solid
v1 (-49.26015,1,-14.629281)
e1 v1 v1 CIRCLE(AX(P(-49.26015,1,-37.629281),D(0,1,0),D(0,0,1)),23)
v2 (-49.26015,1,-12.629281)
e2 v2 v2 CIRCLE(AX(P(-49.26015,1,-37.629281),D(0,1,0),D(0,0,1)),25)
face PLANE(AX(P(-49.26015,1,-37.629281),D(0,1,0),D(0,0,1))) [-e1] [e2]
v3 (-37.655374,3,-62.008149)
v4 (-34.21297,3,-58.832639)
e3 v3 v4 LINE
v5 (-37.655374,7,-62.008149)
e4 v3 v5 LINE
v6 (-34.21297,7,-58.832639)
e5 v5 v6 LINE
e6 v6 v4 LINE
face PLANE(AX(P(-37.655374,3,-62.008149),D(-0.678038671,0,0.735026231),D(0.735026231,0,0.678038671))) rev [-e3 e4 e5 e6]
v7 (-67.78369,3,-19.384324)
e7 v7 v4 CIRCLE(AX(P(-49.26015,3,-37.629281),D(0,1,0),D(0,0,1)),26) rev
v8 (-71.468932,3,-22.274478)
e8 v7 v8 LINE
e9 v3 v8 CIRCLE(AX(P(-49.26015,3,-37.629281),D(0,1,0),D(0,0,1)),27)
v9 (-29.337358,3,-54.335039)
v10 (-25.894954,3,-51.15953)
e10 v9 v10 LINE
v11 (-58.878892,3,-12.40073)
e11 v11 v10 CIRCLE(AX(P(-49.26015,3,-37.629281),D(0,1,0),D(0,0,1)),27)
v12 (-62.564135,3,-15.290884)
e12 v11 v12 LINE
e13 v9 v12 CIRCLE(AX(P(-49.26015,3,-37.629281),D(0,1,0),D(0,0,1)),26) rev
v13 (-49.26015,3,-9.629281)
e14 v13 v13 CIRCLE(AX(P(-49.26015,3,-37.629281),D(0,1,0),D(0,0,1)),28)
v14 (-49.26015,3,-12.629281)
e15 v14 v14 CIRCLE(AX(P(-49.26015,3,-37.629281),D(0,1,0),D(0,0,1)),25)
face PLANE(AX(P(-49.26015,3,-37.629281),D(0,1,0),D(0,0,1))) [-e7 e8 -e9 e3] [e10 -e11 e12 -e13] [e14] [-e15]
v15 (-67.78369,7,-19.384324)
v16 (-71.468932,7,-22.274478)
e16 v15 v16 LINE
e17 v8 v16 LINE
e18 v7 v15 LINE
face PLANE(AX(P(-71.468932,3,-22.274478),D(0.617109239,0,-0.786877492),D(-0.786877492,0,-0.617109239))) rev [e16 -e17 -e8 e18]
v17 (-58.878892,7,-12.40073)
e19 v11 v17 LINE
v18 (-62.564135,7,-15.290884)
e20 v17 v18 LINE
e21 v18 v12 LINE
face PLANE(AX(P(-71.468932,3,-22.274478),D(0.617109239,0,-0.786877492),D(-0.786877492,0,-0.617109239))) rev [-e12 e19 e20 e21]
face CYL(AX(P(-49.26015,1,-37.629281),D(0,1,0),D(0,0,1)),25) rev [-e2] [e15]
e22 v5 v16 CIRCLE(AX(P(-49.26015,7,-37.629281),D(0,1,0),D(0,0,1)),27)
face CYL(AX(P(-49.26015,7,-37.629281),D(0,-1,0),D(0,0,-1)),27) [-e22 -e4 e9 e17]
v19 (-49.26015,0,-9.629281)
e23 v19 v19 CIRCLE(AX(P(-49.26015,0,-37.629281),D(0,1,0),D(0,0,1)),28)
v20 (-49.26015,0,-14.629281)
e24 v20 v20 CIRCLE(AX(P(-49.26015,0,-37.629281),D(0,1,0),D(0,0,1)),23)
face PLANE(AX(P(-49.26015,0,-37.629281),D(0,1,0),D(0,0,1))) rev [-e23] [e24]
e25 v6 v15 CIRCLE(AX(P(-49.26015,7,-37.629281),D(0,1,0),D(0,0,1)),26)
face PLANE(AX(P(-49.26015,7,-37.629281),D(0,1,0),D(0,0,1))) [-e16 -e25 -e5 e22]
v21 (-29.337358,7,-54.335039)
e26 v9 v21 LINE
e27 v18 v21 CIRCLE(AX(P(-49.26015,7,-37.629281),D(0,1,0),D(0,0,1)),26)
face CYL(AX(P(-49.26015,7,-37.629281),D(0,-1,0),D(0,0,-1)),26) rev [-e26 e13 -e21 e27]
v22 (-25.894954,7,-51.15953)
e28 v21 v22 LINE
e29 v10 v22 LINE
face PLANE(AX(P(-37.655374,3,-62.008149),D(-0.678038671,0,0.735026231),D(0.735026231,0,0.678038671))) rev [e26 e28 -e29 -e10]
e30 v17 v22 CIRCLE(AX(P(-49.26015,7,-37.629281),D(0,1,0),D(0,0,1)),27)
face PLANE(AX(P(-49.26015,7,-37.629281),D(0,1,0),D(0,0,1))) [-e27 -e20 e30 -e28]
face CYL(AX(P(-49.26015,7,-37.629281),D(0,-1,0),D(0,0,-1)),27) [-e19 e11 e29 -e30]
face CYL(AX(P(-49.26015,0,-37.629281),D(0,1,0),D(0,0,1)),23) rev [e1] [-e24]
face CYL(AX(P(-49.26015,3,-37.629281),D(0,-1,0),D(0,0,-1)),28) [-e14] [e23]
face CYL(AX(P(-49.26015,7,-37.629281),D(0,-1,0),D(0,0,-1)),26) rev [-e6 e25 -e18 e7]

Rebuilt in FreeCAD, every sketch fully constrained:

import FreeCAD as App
import Part
import Sketcher
from FreeCAD import Vector


def add_polygon(sketch, points):
    """Adds a closed chain of lines whose ends are joined by coincident constraints."""
    first, n = sketch.GeometryCount, len(points)
    for a, b in zip(points, points[1:] + points[:1]):
        sketch.addGeometry(Part.LineSegment(App.Vector(*a, 0), App.Vector(*b, 0)), False)
    for i in range(n):
        sketch.addConstraint(Sketcher.Constraint("Coincident", first + i, 2, first + (i + 1) % n, 1))

doc = App.newDocument("Part")
body = doc.addObject("PartDesign::Body", "Body")

sketch1 = body.newObject("Sketcher::SketchObject", "Sketch")
sketch1.AttachmentSupport = (doc.getObject("XZ_Plane"), [""])
sketch1.MapMode = "FlatFace"
sketch1.addGeometry(Part.Circle(Vector(-49, -38, 0), Vector(0, 0, 1), 28), False)
sketch1.addConstraint(Sketcher.Constraint("Diameter", 0, 56.0))
sketch1.addConstraint(Sketcher.Constraint("DistanceX", 0, 3, -1, 1, 49.26015))
sketch1.addConstraint(Sketcher.Constraint("DistanceY", 0, 3, -1, 1, 37.629281))
pad1 = body.newObject("PartDesign::Pad", "Pad")
pad1.Profile = sketch1
pad1.Length = 3
pad1.Reversed = True

sketch2 = body.newObject("Sketcher::SketchObject", "Sketch001")
sketch2.AttachmentSupport = (doc.getObject("XZ_Plane"), [""])
sketch2.MapMode = "FlatFace"
sketch2.AttachmentOffset = App.Placement(Vector(0, 0, -3), App.Rotation())
sketch2.addGeometry(Part.Circle(Vector(-49, -38, 0), Vector(0, 0, 1), 27), False)
sketch2.addGeometry(Part.Circle(Vector(-49, -38, 0), Vector(0, 0, 1), 26), False)
sketch2.addConstraint(Sketcher.Constraint("Coincident", 1, 3, 0, 3))
sketch2.addConstraint(Sketcher.Constraint("Diameter", 0, 54.0))
sketch2.addConstraint(Sketcher.Constraint("Diameter", 1, 52.0))
sketch2.addConstraint(Sketcher.Constraint("DistanceX", 0, 3, -1, 1, 49.26015))
sketch2.addConstraint(Sketcher.Constraint("DistanceY", 0, 3, -1, 1, 37.629281))
pad2 = body.newObject("PartDesign::Pad", "Pad001")
pad2.Profile = sketch2
pad2.Length = 4
pad2.Reversed = True

sketch3 = body.newObject("Sketcher::SketchObject", "Sketch002")
sketch3.AttachmentSupport = (doc.getObject("XZ_Plane"), [""])
sketch3.MapMode = "FlatFace"
sketch3.AttachmentOffset = App.Placement(Vector(0, 0, -3), App.Rotation())
sketch3.addGeometry(Part.Circle(Vector(-49, -38, 0), Vector(0, 0, 1), 25), False)
sketch3.addConstraint(Sketcher.Constraint("Diameter", 0, 50.0))
sketch3.addConstraint(Sketcher.Constraint("DistanceX", 0, 3, -1, 1, 49.26015))
sketch3.addConstraint(Sketcher.Constraint("DistanceY", 0, 3, -1, 1, 37.629281))
pocket1 = body.newObject("PartDesign::Pocket", "Pocket")
pocket1.Profile = sketch3
pocket1.Length = 2
pocket1.Reversed = True

sketch4 = body.newObject("Sketcher::SketchObject", "Sketch003")
sketch4.AttachmentSupport = (doc.getObject("XZ_Plane"), [""])
sketch4.MapMode = "FlatFace"
sketch4.AttachmentOffset = App.Placement(Vector(0, 0, -1), App.Rotation())
sketch4.addGeometry(Part.Circle(Vector(-49, -38, 0), Vector(0, 0, 1), 23), False)
sketch4.addConstraint(Sketcher.Constraint("Diameter", 0, 46.0))
sketch4.addConstraint(Sketcher.Constraint("DistanceX", 0, 3, -1, 1, 49.26015))
sketch4.addConstraint(Sketcher.Constraint("DistanceY", 0, 3, -1, 1, 37.629281))
pocket2 = body.newObject("PartDesign::Pocket", "Pocket001")
pocket2.Profile = sketch4
pocket2.Type = "ThroughAll"
pocket2.Reversed = True

sketch5 = body.newObject("Sketcher::SketchObject", "Sketch004")
sketch5.AttachmentSupport = (doc.getObject("XZ_Plane"), [""])
sketch5.MapMode = "FlatFace"
sketch5.AttachmentOffset = App.Placement(Vector(0, 0, -7), App.Rotation())
add_polygon(sketch5, [(-58.9, -12.4), (-71.5, -22.3), (-74.2, -18.8), (-61.6, -9)])
add_polygon(sketch5, [(-25.9, -51.2), (-22.9, -54.4), (-34.7, -65.2), (-37.7, -62)])
sketch5.addConstraint(Sketcher.Constraint("Perpendicular", 0, 1))
sketch5.addConstraint(Sketcher.Constraint("Perpendicular", 1, 2))
sketch5.addConstraint(Sketcher.Constraint("Perpendicular", 2, 3))
sketch5.addConstraint(Sketcher.Constraint("Perpendicular", 4, 5))
sketch5.addConstraint(Sketcher.Constraint("Perpendicular", 5, 6))
sketch5.addConstraint(Sketcher.Constraint("Perpendicular", 6, 7))
sketch5.addConstraint(Sketcher.Constraint("Equal", 3, 4))
sketch5.addConstraint(Sketcher.Constraint("Equal", 2, 5))
sketch5.addConstraint(Sketcher.Constraint("Distance", 0, 16.0))
sketch5.addConstraint(Sketcher.Constraint("DistanceX", 0, 2, 5, 2, 36.780899))
sketch5.addConstraint(Sketcher.Constraint("DistanceY", 7, 2, 3, 2, 38.7588))
sketch5.addConstraint(Sketcher.Constraint("Distance", 1, 4.376359))
sketch5.addConstraint(Sketcher.Constraint("DistanceY", 1, 2, -1, 1, 18.83082))
sketch5.addConstraint(Sketcher.Constraint("DistanceY", 2, 2, -1, 1, 8.957072))
sketch5.addConstraint(Sketcher.Constraint("DistanceY", 4, 2, -1, 1, 54.376268))
sketch5.addConstraint(Sketcher.Constraint("DistanceX", 0, 2, -1, 1, 71.468932))
pocket3 = body.newObject("PartDesign::Pocket", "Pocket002")
pocket3.Profile = sketch5
pocket3.Length = 4
pocket3.Reversed = True

doc.recompute()
